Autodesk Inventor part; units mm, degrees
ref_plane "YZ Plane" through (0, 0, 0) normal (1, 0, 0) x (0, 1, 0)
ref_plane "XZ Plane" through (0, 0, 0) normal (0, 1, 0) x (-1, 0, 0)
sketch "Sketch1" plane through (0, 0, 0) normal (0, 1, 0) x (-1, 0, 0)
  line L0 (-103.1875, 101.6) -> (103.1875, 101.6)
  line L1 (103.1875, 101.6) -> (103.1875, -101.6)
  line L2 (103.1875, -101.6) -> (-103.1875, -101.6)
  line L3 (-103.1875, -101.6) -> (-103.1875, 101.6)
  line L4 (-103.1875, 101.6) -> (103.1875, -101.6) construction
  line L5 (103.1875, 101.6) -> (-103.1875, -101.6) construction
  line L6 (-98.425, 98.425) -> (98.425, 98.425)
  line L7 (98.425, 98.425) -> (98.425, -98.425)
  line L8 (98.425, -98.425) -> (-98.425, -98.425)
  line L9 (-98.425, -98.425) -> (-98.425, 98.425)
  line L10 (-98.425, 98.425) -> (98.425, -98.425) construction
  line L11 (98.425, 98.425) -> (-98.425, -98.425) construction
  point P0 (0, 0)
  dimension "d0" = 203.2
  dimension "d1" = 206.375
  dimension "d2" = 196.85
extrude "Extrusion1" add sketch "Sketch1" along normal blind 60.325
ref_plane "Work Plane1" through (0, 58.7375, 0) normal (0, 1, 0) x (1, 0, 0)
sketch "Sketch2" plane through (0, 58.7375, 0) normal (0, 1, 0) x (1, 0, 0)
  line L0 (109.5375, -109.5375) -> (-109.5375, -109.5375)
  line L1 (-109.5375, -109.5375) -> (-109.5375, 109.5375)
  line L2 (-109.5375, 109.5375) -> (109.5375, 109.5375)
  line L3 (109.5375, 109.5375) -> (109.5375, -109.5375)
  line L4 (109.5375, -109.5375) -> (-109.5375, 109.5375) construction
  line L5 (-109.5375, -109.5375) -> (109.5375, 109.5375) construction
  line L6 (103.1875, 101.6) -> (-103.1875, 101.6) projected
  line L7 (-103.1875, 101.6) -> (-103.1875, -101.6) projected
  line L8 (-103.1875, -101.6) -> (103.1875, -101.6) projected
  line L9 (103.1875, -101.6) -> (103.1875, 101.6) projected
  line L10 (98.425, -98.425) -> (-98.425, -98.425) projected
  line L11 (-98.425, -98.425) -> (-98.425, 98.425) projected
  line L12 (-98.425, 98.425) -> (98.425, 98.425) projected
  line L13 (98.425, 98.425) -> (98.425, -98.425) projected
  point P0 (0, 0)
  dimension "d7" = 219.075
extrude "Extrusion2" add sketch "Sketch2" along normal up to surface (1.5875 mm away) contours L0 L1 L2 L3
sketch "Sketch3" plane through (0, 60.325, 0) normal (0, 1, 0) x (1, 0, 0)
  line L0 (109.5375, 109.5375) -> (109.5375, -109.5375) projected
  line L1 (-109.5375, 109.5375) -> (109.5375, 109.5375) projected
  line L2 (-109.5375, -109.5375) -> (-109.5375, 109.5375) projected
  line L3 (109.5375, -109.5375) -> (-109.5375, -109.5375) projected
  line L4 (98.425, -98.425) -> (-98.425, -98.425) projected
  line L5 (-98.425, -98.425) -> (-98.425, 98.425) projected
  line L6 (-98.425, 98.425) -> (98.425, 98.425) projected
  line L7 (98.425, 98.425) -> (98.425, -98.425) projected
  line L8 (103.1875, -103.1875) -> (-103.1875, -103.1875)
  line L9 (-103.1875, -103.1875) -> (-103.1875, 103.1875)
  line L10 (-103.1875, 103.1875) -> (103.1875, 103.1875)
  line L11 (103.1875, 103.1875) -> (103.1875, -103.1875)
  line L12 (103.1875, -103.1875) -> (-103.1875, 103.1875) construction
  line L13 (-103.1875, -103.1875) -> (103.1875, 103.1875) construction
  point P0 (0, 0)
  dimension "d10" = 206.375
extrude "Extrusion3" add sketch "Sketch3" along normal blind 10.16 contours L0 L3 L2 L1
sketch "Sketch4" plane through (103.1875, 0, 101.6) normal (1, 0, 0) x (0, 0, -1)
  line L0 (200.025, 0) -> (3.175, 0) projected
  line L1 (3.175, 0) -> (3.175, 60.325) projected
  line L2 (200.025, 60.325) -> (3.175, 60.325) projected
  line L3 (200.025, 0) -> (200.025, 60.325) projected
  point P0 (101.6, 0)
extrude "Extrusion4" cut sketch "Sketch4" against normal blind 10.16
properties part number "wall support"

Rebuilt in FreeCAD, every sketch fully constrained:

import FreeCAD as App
import Part
import Sketcher

V = App.Vector
Q = App.Units.Quantity


def add_polygon(sketch, points):
    """Adds a closed chain of lines whose ends are joined by coincident constraints."""
    first, n = sketch.GeometryCount, len(points)
    for a, b in zip(points, points[1:] + points[:1]):
        sketch.addGeometry(Part.LineSegment(App.Vector(*a, 0), App.Vector(*b, 0)), False)
    for i in range(n):
        sketch.addConstraint(Sketcher.Constraint("Coincident", first + i, 2, first + (i + 1) % n, 1))

doc = App.newDocument("Part")
params = doc.addObject("Spreadsheet::Sheet", "Params")
for row, (alias, value) in enumerate([
    ("sketch1_height", "8 in"),
    ("sketch1_width", "7.75 in"),
    ("sketch1_width2", "8.125 in"),
    ("pad1_length", "2.375 in"),
    ("sketch2_width", "8.625 in"),
    ("sketch2_height", "8 in"),
    ("sketch2_width2", "8.125 in"),
    ("pad2_length", "0.0625 in"),
    ("sketch3_width", "8.125 in"),
    ("sketch3_width2", "8.625 in"),
    ("pad3_length", "0.4 in"),
    ("sketch4_height", "7.75 in"),
    ("sketch4_width", "2.375 in"),
    ("pocket1_length", "0.4 in"),
], start=1):
    params.set(f"A{row}", alias)
    params.set(f"B{row}", "=" + value)
    params.setAlias(f"B{row}", alias)

body = doc.addObject("PartDesign::Body", "Body")

sketch1 = body.newObject("Sketcher::SketchObject", "Sketch")
sketch1.AttachmentSupport = (doc.getObject("XZ_Plane"), [""])
sketch1.MapMode = "FlatFace"
add_polygon(sketch1, [(-103, 102), (103, 102), (103, -102), (-103, -102)])
add_polygon(sketch1, [(98, -98), (98, 98), (-98, 98), (-98, -98)])
sketch1.addConstraint(Sketcher.Constraint("Horizontal", 0))
sketch1.addConstraint(Sketcher.Constraint("Vertical", 1))
sketch1.addConstraint(Sketcher.Constraint("Horizontal", 2))
sketch1.addConstraint(Sketcher.Constraint("Vertical", 3))
sketch1.addConstraint(Sketcher.Constraint("Vertical", 4))
sketch1.addConstraint(Sketcher.Constraint("Horizontal", 5))
sketch1.addConstraint(Sketcher.Constraint("Vertical", 6))
sketch1.addConstraint(Sketcher.Constraint("Horizontal", 7))
sketch1.addConstraint(Sketcher.Constraint("Symmetric", 0, 2, 2, 2, -1, 1))
sketch1.addConstraint(Sketcher.Constraint("Symmetric", 4, 2, 6, 2, -1, 1))
sketch1.addConstraint(Sketcher.Constraint("Equal", 7, 4))
sketch1.addConstraint(Sketcher.Constraint("DistanceY", 1, 2, 1, 1, Q("8 in")))
sketch1.addConstraint(Sketcher.Constraint("DistanceX", 5, 2, 5, 1, Q("7.75 in")))
sketch1.addConstraint(Sketcher.Constraint("DistanceX", 0, 1, 0, 2, Q("8.125 in")))
sketch1.setExpression("Constraints[19]", "Params.sketch1_height")
sketch1.setExpression("Constraints[20]", "Params.sketch1_width")
sketch1.setExpression("Constraints[21]", "Params.sketch1_width2")
pad1 = body.newObject("PartDesign::Pad", "Pad")
pad1.Profile = sketch1
pad1.setExpression("Length", "Params.pad1_length")
pad1.Reversed = True

sketch2 = body.newObject("Sketcher::SketchObject", "Sketch001")
sketch2.AttachmentSupport = (doc.getObject("XZ_Plane"), [""])
sketch2.MapMode = "FlatFace"
sketch2.AttachmentOffset = App.Placement(V(0, 0, -2.3125 * 25.4), App.Rotation())
add_polygon(sketch2, [(-110, 110), (110, 110), (110, -110), (-110, -110)])
add_polygon(sketch2, [(-103, -102), (103, -102), (103, 102), (-103, 102)])
sketch2.addConstraint(Sketcher.Constraint("Horizontal", 0))
sketch2.addConstraint(Sketcher.Constraint("Vertical", 1))
sketch2.addConstraint(Sketcher.Constraint("Horizontal", 2))
sketch2.addConstraint(Sketcher.Constraint("Vertical", 3))
sketch2.addConstraint(Sketcher.Constraint("Horizontal", 4))
sketch2.addConstraint(Sketcher.Constraint("Vertical", 5))
sketch2.addConstraint(Sketcher.Constraint("Horizontal", 6))
sketch2.addConstraint(Sketcher.Constraint("Vertical", 7))
sketch2.addConstraint(Sketcher.Constraint("Symmetric", 0, 2, 2, 2, -1, 1))
sketch2.addConstraint(Sketcher.Constraint("Symmetric", 4, 2, 6, 2, -1, 1))
sketch2.addConstraint(Sketcher.Constraint("Equal", 2, 1))
sketch2.addConstraint(Sketcher.Constraint("DistanceX", 0, 1, 0, 2, Q("8.625 in")))
sketch2.addConstraint(Sketcher.Constraint("DistanceY", 5, 1, 5, 2, Q("8 in")))
sketch2.addConstraint(Sketcher.Constraint("DistanceX", 4, 1, 4, 2, Q("8.125 in")))
sketch2.setExpression("Constraints[19]", "Params.sketch2_width")
sketch2.setExpression("Constraints[20]", "Params.sketch2_height")
sketch2.setExpression("Constraints[21]", "Params.sketch2_width2")
pad2 = body.newObject("PartDesign::Pad", "Pad001")
pad2.Profile = sketch2
pad2.setExpression("Length", "Params.pad2_length")
pad2.Reversed = True

sketch3 = body.newObject("Sketcher::SketchObject", "Sketch002")
sketch3.AttachmentSupport = (doc.getObject("XZ_Plane"), [""])
sketch3.MapMode = "FlatFace"
sketch3.AttachmentOffset = App.Placement(V(0, 0, -2.375 * 25.4), App.Rotation())
add_polygon(sketch3, [(110, 110), (110, -110), (-110, -110), (-110, 110)])
add_polygon(sketch3, [(103, -103), (103, 103), (-103, 103), (-103, -103)])
sketch3.addConstraint(Sketcher.Constraint("Vertical", 0))
sketch3.addConstraint(Sketcher.Constraint("Horizontal", 1))
sketch3.addConstraint(Sketcher.Constraint("Vertical", 2))
sketch3.addConstraint(Sketcher.Constraint("Horizontal", 3))
sketch3.addConstraint(Sketcher.Constraint("Vertical", 4))
sketch3.addConstraint(Sketcher.Constraint("Horizontal", 5))
sketch3.addConstraint(Sketcher.Constraint("Vertical", 6))
sketch3.addConstraint(Sketcher.Constraint("Horizontal", 7))
sketch3.addConstraint(Sketcher.Constraint("Symmetric", 0, 2, 2, 2, -1, 1))
sketch3.addConstraint(Sketcher.Constraint("Symmetric", 4, 2, 6, 2, -1, 1))
sketch3.addConstraint(Sketcher.Constraint("Equal", 3, 0))
sketch3.addConstraint(Sketcher.Constraint("Equal", 7, 4))
sketch3.addConstraint(Sketcher.Constraint("DistanceX", 5, 2, 5, 1, Q("8.125 in")))
sketch3.addConstraint(Sketcher.Constraint("DistanceX", 1, 2, 1, 1, Q("8.625 in")))
sketch3.setExpression("Constraints[20]", "Params.sketch3_width")
sketch3.setExpression("Constraints[21]", "Params.sketch3_width2")
pad3 = body.newObject("PartDesign::Pad", "Pad002")
pad3.Profile = sketch3
pad3.setExpression("Length", "Params.pad3_length")
pad3.Reversed = True

sketch4 = body.newObject("Sketcher::SketchObject", "Sketch003")
sketch4.AttachmentSupport = (doc.getObject("YZ_Plane"), [""])
sketch4.MapMode = "FlatFace"
sketch4.AttachmentOffset = App.Placement(V(0, 0, 4.0625 * 25.4), App.Rotation())
add_polygon(sketch4, [(0, 98), (0, -98), (60, -98), (60, 98)])
sketch4.addConstraint(Sketcher.Constraint("Vertical", 0))
sketch4.addConstraint(Sketcher.Constraint("Horizontal", 1))
sketch4.addConstraint(Sketcher.Constraint("Vertical", 2))
sketch4.addConstraint(Sketcher.Constraint("Horizontal", 3))
sketch4.addConstraint(Sketcher.Constraint("Symmetric", 0, 2, 3, 2, -1, 1))
sketch4.addConstraint(Sketcher.Constraint("DistanceY", 0, 2, 0, 1, Q("7.75 in")))
sketch4.addConstraint(Sketcher.Constraint("DistanceX", 1, 1, 1, 2, Q("2.375 in")))
sketch4.setExpression("Constraints[9]", "Params.sketch4_height")
sketch4.setExpression("Constraints[10]", "Params.sketch4_width")
pocket1 = body.newObject("PartDesign::Pocket", "Pocket")
pocket1.Profile = sketch4
pocket1.setExpression("Length", "Params.pocket1_length")

doc.recompute()
